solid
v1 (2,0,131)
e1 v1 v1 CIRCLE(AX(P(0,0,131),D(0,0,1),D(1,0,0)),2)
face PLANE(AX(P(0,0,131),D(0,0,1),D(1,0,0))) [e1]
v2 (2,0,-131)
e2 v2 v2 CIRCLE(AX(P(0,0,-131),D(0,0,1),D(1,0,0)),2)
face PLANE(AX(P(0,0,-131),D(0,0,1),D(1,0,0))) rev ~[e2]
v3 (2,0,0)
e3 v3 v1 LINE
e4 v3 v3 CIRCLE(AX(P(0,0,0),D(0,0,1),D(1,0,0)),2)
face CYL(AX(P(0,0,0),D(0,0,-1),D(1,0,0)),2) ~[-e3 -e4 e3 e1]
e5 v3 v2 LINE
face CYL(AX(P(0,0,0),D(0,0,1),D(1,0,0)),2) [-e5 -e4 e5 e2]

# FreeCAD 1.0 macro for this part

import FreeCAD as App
import Part
import Sketcher
from FreeCAD import Vector
Q = App.Units.Quantity

doc = App.newDocument("Part")
body = doc.addObject("PartDesign::Body", "Body")

sketch1 = body.newObject("Sketcher::SketchObject", "Sketch")
sketch1.AttachmentSupport = (doc.getObject("XY_Plane"), [""])
sketch1.MapMode = "FlatFace"
sketch1.addGeometry(Part.Circle(Vector(0, 0, 0), Vector(0, 0, 1), 2), False)
sketch1.addConstraint([
    Sketcher.Constraint("Coincident", 0, 3, -1, 1),
    Sketcher.Constraint("Diameter", 0, Q("4 mm")),
])
pad1 = body.newObject("PartDesign::Pad", "Pad")
pad1.Profile = sketch1
pad1.Length = 262
pad1.Midplane = True

doc.recompute()
